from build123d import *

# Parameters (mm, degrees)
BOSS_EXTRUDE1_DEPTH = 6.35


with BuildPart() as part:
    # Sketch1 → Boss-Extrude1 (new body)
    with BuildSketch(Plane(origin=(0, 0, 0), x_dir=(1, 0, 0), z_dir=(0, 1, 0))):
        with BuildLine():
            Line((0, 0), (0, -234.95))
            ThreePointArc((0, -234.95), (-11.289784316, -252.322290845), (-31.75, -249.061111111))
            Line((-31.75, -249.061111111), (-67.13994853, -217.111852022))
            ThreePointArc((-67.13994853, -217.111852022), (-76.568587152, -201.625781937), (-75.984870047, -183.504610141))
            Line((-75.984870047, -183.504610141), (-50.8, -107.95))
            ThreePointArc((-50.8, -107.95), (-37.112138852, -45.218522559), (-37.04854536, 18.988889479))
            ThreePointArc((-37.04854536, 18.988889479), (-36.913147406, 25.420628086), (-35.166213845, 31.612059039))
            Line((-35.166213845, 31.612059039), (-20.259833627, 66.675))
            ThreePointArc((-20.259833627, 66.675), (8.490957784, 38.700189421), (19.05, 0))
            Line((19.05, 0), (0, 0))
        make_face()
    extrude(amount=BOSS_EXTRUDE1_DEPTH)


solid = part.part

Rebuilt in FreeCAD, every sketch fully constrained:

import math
import FreeCAD as App
import Part
import Sketcher
from FreeCAD import Vector
Q = App.Units.Quantity

doc = App.newDocument("Part")
params = doc.addObject("Spreadsheet::Sheet", "Params")
for row, (alias, value) in enumerate([
    ("sketch1_radius", "3 in"),
    ("sketch1_radius2", "1 in"),
    ("sketch1_radius3", "1.25 in"),
    ("sketch1_length", "1.5 in"),
    ("sketch1_width", "0.75 in"),
    ("pad1_length", "0.25 in"),
], start=1):
    params.set(f"A{row}", alias)
    params.set(f"B{row}", "=" + value)
    params.setAlias(f"B{row}", alias)

body = doc.addObject("PartDesign::Body", "Body")

sketch1 = doc.addObject("Sketcher::SketchObject", "Sketch")
body.addObject(sketch1)
sketch1.AttachmentSupport = (doc.XZ_Plane, [""])
sketch1.MapMode = "FlatFace"
sketch1.addGeometry(Part.LineSegment(Vector(0, 234.95, 0), Vector(0, 0, 0)), False)
sketch1.addGeometry(Part.LineSegment(Vector(0, 0, 0), Vector(19.05, 0, 0)), False)
sketch1.addGeometry(Part.ArcOfCircle(Part.Circle(Vector(-57.15, 0, 0), Vector(0, 0, 1), 76.2), math.radians(-61.044976), math.radians(0)), False)
sketch1.addGeometry(Part.LineSegment(Vector(-20.259834, -66.675, 0), Vector(-35.166214, -31.612059, 0)), False)
sketch1.addGeometry(Part.ArcOfCircle(Part.Circle(Vector(-11.79092, -21.674472, 0), Vector(0, 0, 1), 25.4), math.radians(173.930681), math.radians(203.0319)), False)
sketch1.addGeometry(Part.ArcOfCircle(Part.Circle(Vector(-336.194312, 12.818563, 0), Vector(0, 0, 1), 300.832019), math.radians(-6.069319), math.radians(18.434949)), False)
sketch1.addGeometry(Part.LineSegment(Vector(-50.8, 107.95, 0), Vector(-75.98487, 183.50461, 0)), False)
sketch1.addGeometry(Part.ArcOfCircle(Part.Circle(Vector(-45.864175, 193.544842, 0), Vector(0, 0, 1), 31.75), math.radians(132.075022), math.radians(198.434949)), False)
sketch1.addGeometry(Part.LineSegment(Vector(-67.139949, 217.111852, 0), Vector(-31.75, 249.061111, 0)), False)
sketch1.addGeometry(Part.ArcOfCircle(Part.Circle(Vector(-19.010802, 234.95, 0), Vector(0, 0, 1), 19.010802), math.radians(0), math.radians(132.075022)), False)
sketch1.addConstraint(Sketcher.Constraint("Coincident", 0, 2, 1, 1))
sketch1.addConstraint(Sketcher.Constraint("Coincident", 1, 2, 2, 2))
sketch1.addConstraint(Sketcher.Constraint("Coincident", 2, 1, 3, 1))
sketch1.addConstraint(Sketcher.Constraint("Tangent", 3, 2, 4, 2))
sketch1.addConstraint(Sketcher.Constraint("Tangent", 4, 1, 5, 1))
sketch1.addConstraint(Sketcher.Constraint("Tangent", 5, 2, 6, 1))
sketch1.addConstraint(Sketcher.Constraint("Tangent", 6, 2, 7, 2))
sketch1.addConstraint(Sketcher.Constraint("Tangent", 7, 1, 8, 1))
sketch1.addConstraint(Sketcher.Constraint("Tangent", 8, 2, 9, 2))
sketch1.addConstraint(Sketcher.Constraint("Tangent", 9, 1, 0, 1))
sketch1.addConstraint(Sketcher.Constraint("Vertical", 0))
sketch1.addConstraint(Sketcher.Constraint("Horizontal", 1))
sketch1.addConstraint(Sketcher.Constraint("Coincident", 0, 2, -1, 1))
sketch1.addConstraint(Sketcher.Constraint("PointOnObject", 2, 3, -1))
sketch1.addConstraint(Sketcher.Constraint("Radius", 2, Q("3 in")))
sketch1.addConstraint(Sketcher.Constraint("Radius", 4, Q("1 in")))
sketch1.addConstraint(Sketcher.Constraint("Radius", 7, Q("1.25 in")))
sketch1.addConstraint(Sketcher.Constraint("DistanceX", 5, 2, -1, 1, Q("2 in")))
sketch1.addConstraint(Sketcher.Constraint("Distance", 3, Q("1.5 in")))
sketch1.addConstraint(Sketcher.Constraint("DistanceX", 1, 1, 1, 2, Q("0.75 in")))
sketch1.addConstraint(Sketcher.Constraint("DistanceY", 0, 2, 0, 1, Q("9.25 in")))
sketch1.addConstraint(Sketcher.Constraint("DistanceY", -1, 1, 5, 2, Q("4.25 in")))
sketch1.addConstraint(Sketcher.Constraint("DistanceX", 8, 2, -1, 1, Q("1.25 in")))
sketch1.addConstraint(Sketcher.Constraint("DistanceY", 2, 1, -1, 1, Q("2.625 in")))
sketch1.addConstraint(Sketcher.Constraint("Radius", 5, Q("300.832019 mm")))
sketch1.addConstraint(Sketcher.Constraint("Radius", 9, Q("19.010802 mm")))
sketch1.addConstraint(Sketcher.Constraint("DistanceY", 6, 2, 8, 2, Q("65.556501 mm")))
sketch1.setExpression("Constraints[14]", "Params.sketch1_radius")
sketch1.setExpression("Constraints[15]", "Params.sketch1_radius2")
sketch1.setExpression("Constraints[16]", "Params.sketch1_radius3")
sketch1.setExpression("Constraints[18]", "Params.sketch1_length")
sketch1.setExpression("Constraints[19]", "Params.sketch1_width")
pad1 = doc.addObject("PartDesign::Pad", "Pad")
body.addObject(pad1)
pad1.Profile = sketch1
pad1.setExpression("Length", "Params.pad1_length")
pad1.Reversed = True

doc.recompute()
